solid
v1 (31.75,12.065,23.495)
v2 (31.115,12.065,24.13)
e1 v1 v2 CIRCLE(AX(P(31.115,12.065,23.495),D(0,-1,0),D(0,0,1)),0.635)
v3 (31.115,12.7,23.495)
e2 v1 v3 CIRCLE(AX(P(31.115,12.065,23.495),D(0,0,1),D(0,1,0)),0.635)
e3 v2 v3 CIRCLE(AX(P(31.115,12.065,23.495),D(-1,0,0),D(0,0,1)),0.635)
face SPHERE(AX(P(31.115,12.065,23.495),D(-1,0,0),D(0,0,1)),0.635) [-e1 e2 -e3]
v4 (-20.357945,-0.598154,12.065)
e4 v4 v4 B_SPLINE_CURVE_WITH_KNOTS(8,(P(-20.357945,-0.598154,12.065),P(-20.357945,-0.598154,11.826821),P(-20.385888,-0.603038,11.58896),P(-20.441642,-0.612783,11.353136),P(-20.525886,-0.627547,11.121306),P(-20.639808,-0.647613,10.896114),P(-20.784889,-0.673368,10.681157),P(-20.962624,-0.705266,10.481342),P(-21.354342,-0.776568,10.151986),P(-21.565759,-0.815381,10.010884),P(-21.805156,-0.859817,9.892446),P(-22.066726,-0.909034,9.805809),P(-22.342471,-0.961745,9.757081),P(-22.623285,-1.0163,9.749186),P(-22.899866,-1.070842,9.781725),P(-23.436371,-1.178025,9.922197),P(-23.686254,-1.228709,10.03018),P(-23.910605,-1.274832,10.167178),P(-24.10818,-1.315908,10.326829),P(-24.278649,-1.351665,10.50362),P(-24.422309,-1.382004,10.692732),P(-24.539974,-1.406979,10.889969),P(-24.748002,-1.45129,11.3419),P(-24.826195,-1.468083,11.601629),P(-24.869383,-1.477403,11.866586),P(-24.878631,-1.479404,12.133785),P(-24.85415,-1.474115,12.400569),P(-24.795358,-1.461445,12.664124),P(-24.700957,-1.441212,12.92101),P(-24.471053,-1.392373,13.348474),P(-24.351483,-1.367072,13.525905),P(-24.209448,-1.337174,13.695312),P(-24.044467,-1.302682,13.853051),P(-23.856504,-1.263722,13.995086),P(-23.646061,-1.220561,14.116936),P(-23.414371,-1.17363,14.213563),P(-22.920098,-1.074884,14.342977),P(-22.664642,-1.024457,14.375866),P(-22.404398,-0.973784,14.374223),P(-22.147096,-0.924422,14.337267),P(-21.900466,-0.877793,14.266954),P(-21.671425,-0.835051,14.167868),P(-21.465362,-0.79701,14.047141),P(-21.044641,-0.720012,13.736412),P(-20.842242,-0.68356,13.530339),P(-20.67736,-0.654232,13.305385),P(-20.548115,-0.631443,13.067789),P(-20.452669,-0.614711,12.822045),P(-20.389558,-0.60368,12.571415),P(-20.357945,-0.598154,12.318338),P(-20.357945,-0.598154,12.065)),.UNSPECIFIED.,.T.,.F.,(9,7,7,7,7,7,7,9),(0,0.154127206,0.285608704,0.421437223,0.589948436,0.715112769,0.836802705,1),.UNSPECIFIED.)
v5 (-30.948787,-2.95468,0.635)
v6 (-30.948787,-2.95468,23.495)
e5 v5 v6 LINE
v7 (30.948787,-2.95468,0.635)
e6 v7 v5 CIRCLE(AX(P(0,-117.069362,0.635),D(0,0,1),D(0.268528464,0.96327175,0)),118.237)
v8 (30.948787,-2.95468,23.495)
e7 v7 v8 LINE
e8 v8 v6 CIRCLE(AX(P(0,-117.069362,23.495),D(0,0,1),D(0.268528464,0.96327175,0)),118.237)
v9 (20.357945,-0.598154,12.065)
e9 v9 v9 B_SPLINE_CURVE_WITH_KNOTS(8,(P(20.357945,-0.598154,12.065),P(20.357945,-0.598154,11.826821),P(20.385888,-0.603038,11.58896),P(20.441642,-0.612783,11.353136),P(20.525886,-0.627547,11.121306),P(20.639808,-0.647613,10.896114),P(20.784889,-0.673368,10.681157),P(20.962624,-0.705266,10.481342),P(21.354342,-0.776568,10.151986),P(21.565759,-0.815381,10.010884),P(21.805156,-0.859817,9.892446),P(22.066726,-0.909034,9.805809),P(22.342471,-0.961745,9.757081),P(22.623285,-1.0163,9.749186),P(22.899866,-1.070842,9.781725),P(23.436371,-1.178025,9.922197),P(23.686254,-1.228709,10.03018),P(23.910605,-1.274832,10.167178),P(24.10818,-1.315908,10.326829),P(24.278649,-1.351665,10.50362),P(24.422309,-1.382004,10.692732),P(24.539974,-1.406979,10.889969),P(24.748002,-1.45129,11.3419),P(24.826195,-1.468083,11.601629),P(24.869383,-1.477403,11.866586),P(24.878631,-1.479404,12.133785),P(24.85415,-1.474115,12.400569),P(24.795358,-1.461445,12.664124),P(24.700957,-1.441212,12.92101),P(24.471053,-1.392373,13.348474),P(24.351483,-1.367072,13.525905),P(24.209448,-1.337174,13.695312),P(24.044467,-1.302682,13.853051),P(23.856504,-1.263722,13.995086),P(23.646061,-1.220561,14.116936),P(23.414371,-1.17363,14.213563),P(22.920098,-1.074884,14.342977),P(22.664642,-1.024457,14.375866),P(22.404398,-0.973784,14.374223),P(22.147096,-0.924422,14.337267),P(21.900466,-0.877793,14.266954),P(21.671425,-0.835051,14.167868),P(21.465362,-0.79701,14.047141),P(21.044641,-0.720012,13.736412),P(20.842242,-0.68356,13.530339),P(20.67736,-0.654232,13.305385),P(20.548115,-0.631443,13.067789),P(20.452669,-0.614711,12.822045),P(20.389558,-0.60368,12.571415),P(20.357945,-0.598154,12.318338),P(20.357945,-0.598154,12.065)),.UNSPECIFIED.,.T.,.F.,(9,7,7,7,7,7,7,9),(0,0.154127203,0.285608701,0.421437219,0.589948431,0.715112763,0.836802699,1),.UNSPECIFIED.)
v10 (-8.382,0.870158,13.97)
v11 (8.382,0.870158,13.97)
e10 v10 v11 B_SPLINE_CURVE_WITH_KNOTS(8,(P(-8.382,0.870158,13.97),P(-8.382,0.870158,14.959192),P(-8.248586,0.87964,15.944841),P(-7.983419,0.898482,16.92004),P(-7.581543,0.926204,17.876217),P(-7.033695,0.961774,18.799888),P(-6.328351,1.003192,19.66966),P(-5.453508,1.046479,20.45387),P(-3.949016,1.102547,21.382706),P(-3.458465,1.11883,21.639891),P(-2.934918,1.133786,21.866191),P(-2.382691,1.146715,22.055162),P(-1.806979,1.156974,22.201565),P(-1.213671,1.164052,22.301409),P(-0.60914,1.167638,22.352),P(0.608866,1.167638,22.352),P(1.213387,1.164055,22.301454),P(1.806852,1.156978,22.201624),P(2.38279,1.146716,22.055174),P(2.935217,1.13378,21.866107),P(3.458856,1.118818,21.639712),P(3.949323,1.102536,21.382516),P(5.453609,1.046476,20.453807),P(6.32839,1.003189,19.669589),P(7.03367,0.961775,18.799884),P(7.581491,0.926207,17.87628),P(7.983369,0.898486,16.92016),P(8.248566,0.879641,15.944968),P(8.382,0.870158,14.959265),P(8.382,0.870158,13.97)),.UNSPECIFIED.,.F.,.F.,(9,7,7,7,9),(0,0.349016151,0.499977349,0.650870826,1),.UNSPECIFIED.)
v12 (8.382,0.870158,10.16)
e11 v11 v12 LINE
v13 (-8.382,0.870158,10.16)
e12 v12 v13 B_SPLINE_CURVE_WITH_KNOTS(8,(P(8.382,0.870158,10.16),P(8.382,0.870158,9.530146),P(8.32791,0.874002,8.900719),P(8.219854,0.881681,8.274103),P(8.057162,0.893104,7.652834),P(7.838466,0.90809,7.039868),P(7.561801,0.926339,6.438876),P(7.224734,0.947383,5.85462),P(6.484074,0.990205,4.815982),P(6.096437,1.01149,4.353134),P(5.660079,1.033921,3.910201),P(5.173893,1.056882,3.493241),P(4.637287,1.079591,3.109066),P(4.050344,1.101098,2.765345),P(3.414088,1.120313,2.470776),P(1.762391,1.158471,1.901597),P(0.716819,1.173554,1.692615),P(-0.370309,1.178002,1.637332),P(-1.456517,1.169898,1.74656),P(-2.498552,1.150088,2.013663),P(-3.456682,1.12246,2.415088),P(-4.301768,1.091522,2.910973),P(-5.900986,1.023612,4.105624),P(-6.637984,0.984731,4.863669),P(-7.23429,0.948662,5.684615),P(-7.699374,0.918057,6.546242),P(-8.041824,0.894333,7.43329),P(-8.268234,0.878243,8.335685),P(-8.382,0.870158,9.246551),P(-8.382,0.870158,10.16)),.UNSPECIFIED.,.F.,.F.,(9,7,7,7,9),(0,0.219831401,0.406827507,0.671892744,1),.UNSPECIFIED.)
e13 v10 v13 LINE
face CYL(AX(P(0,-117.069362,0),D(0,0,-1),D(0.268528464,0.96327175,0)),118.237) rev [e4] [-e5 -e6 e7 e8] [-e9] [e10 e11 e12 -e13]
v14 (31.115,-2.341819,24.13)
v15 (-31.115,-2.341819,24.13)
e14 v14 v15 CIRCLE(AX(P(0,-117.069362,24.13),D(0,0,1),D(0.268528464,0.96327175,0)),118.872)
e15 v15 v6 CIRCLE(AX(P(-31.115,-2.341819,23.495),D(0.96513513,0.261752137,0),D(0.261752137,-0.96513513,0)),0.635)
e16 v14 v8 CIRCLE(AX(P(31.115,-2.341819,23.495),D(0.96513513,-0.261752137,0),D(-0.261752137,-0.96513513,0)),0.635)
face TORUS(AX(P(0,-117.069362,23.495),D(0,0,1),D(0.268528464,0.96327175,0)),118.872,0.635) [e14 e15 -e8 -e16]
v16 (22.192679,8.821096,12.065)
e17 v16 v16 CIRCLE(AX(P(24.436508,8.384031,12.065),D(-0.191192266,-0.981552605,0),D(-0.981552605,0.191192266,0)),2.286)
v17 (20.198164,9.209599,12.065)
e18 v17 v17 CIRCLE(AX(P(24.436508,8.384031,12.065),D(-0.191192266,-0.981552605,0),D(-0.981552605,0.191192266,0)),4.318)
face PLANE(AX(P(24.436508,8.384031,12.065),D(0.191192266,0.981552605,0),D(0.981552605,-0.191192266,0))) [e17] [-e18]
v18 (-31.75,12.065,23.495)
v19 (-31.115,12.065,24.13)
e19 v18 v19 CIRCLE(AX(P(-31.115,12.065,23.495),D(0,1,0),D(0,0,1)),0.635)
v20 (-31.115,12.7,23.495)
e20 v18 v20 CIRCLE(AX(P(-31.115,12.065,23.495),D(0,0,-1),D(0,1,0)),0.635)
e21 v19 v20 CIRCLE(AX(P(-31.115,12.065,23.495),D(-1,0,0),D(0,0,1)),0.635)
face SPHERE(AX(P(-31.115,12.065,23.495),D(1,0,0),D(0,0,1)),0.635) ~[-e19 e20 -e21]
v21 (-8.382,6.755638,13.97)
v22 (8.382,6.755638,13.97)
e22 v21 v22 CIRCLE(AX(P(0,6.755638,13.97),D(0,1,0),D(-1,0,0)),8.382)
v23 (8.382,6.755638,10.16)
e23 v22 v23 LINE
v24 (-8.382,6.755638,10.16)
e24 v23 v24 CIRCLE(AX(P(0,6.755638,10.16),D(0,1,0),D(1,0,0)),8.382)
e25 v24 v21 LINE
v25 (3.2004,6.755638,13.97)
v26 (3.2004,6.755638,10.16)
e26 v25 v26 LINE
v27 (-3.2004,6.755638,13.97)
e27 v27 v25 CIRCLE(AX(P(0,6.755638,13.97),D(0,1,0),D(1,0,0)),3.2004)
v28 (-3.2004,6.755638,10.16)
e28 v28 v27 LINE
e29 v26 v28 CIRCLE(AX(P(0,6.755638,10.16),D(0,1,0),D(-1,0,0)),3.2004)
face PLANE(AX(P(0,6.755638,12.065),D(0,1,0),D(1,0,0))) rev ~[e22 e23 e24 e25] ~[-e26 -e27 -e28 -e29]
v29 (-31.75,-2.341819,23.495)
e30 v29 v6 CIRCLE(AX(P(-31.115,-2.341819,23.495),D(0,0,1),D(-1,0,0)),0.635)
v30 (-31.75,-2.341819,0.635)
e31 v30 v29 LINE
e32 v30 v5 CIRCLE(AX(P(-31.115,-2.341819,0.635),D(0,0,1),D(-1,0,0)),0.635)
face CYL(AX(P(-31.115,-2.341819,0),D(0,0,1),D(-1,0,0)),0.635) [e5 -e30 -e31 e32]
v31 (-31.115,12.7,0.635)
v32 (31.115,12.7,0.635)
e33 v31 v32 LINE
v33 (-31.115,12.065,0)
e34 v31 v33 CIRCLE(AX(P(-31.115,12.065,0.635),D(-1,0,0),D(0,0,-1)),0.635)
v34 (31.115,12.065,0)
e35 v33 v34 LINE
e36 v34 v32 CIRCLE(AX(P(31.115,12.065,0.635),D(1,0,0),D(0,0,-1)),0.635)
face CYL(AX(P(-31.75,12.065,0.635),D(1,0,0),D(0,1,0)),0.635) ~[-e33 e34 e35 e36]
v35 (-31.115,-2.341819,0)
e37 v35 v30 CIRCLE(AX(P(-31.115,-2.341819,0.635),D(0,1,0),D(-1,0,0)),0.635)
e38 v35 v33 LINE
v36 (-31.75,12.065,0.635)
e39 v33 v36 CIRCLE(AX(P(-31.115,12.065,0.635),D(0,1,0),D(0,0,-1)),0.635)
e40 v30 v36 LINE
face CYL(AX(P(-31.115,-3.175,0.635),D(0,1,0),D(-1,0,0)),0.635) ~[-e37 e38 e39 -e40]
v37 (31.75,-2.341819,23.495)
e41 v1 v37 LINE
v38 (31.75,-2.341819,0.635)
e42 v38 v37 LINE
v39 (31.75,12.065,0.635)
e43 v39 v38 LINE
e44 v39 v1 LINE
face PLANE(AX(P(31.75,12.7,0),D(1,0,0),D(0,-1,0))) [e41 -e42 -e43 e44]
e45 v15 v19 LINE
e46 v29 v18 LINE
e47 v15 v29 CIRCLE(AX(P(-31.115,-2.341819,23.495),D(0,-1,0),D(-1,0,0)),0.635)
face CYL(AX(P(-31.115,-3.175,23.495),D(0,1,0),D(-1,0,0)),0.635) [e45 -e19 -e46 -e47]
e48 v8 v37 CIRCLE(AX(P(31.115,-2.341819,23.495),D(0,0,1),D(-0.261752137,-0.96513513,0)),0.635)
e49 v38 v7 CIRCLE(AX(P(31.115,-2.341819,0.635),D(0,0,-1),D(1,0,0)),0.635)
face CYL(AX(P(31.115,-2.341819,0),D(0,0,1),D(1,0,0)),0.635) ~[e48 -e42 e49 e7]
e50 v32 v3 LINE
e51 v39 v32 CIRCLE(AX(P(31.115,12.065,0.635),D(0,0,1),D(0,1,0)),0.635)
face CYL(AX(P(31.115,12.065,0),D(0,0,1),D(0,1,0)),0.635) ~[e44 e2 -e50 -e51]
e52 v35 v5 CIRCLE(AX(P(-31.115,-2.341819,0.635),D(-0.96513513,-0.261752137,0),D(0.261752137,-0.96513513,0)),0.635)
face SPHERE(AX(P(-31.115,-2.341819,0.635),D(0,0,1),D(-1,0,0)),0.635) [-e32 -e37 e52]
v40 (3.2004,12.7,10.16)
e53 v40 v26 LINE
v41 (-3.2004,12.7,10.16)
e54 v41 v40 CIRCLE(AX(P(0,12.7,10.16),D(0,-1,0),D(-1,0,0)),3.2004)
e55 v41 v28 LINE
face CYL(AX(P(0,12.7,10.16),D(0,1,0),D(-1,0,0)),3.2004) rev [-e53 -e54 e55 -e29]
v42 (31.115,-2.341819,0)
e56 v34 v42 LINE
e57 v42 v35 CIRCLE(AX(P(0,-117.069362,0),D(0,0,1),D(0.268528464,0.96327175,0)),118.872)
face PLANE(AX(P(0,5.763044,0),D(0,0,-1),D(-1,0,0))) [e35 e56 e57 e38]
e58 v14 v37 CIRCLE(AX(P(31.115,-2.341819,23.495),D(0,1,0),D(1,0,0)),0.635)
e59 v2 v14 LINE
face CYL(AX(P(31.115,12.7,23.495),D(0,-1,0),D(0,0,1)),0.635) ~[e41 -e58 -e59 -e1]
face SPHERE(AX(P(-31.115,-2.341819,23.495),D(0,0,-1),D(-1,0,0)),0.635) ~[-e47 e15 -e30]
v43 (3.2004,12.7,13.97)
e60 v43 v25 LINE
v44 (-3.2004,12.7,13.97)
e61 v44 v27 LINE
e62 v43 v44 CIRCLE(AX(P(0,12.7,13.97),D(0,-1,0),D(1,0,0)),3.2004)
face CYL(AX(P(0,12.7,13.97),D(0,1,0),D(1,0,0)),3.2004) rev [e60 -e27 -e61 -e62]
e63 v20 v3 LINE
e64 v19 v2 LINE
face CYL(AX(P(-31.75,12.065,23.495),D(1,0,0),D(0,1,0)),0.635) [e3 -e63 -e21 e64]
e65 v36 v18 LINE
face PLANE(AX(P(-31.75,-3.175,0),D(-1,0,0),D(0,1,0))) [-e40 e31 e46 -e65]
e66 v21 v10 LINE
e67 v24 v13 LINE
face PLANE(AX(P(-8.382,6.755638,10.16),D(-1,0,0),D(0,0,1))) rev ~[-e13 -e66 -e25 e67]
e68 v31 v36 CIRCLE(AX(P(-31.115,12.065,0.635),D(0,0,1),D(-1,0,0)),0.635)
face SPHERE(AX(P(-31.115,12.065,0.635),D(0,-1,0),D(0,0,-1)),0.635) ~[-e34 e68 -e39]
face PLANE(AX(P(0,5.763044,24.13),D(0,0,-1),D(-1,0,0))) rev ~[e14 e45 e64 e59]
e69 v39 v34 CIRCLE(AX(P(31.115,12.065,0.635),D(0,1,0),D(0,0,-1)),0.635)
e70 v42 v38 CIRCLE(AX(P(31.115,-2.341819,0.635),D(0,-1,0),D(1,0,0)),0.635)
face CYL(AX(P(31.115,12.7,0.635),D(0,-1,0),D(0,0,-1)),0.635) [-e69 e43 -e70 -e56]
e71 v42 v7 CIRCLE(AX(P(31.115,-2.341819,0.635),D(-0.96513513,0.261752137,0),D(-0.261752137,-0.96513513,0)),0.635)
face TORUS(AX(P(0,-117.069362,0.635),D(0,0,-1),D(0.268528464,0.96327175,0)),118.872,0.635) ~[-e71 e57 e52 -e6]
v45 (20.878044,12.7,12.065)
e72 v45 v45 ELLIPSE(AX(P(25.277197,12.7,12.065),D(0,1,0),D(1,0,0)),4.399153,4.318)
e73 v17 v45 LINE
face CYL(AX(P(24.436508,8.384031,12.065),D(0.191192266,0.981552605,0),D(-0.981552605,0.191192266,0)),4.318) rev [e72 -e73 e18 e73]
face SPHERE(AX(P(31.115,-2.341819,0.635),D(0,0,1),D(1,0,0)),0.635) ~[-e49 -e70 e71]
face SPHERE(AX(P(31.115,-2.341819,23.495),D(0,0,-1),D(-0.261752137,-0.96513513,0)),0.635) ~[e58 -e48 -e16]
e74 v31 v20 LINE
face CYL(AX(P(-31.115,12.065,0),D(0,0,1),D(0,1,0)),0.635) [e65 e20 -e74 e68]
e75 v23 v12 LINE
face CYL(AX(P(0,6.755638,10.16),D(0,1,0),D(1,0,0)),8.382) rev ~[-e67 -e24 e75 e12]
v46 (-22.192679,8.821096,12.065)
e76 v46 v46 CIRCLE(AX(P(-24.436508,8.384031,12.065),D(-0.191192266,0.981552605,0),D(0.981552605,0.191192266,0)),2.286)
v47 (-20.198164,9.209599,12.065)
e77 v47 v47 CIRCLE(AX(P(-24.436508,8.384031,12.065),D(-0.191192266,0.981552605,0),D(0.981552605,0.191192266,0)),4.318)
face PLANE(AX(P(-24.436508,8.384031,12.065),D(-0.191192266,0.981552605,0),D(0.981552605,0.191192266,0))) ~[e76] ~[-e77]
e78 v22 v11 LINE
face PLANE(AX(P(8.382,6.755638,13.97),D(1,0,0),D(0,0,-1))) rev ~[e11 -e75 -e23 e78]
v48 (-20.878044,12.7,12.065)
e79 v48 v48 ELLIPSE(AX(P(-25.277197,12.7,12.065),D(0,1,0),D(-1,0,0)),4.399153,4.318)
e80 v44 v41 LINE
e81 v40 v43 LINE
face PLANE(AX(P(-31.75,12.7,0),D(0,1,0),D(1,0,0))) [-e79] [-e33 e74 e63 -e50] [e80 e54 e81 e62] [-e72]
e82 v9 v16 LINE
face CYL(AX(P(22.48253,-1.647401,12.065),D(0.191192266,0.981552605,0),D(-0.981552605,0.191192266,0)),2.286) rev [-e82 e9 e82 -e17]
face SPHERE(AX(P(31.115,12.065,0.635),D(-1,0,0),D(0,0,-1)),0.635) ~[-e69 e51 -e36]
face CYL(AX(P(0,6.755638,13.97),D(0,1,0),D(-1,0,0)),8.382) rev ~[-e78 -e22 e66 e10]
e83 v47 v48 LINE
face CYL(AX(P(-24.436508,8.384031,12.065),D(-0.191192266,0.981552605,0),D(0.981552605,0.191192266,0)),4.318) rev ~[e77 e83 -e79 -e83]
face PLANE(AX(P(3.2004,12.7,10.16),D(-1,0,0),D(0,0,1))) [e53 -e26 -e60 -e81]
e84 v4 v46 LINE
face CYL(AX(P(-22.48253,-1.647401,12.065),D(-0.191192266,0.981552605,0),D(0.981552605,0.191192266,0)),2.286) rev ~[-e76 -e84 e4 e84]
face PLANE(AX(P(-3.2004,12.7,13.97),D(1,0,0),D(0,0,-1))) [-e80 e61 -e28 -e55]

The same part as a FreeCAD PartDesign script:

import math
import FreeCAD as App
import Part
import Sketcher
Q = App.Units.Quantity


def edges_at(feature, points):
    """Names of the edges that pass closest to the given points."""
    edges = feature.Shape.Edges
    near = lambda p: min(range(len(edges)), key=lambda i: edges[i].distToShape(Part.Vertex(*p))[0])
    return sorted({f"Edge{near(p) + 1}" for p in points})


def add_polygon(sketch, points):
    """Adds a closed chain of lines whose ends are joined by coincident constraints."""
    first, n = sketch.GeometryCount, len(points)
    for a, b in zip(points, points[1:] + points[:1]):
        sketch.addGeometry(Part.LineSegment(App.Vector(*a, 0), App.Vector(*b, 0)), False)
    for i in range(n):
        sketch.addConstraint(Sketcher.Constraint("Coincident", first + i, 2, first + (i + 1) % n, 1))

doc = App.newDocument("Part")
body = doc.addObject("PartDesign::Body", "Body")

sketch1 = body.newObject("Sketcher::SketchObject", "Sketch")
sketch1.AttachmentSupport = (doc.getObject("XY_Plane"), [""])
sketch1.MapMode = "FlatFace"
sketch1.addGeometry([
    Part.LineSegment(App.Vector(32, 13, 0), App.Vector(-32, 13, 0)),
    Part.LineSegment(App.Vector(-32, 13, 0), App.Vector(-32, -3, 0)),
    Part.ArcOfCircle(Part.Circle(App.Vector(0, -117, 0), App.Vector(0, 0, 1), 118), math.radians(74), math.radians(106)),
    Part.LineSegment(App.Vector(32, -3, 0), App.Vector(32, 13, 0)),
], False)
sketch1.addConstraint([
    Sketcher.Constraint("Coincident", 0, 2, 1, 1),
    Sketcher.Constraint("Coincident", 1, 2, 2, 2),
    Sketcher.Constraint("Coincident", 2, 1, 3, 1),
    Sketcher.Constraint("Coincident", 3, 2, 0, 1),
    Sketcher.Constraint("Horizontal", 0),
    Sketcher.Constraint("Vertical", 1),
    Sketcher.Constraint("Vertical", 3),
    Sketcher.Constraint("Symmetric", 1, 2, 2, 1, -2),
    Sketcher.Constraint("DistanceX", 0, 2, 0, 1, Q("2.5 in")),
    Sketcher.Constraint("Radius", 2, Q("4.655 in")),
    Sketcher.Constraint("DistanceY", -1, 1, 0, 2, Q("0.5 in")),
    Sketcher.Constraint("DistanceY", 1, 2, 1, 1, Q("0.625 in")),
])
pad1 = body.newObject("PartDesign::Pad", "Pad")
pad1.Profile = sketch1
pad1.Length = Q("0.95 in")

sketch2 = body.newObject("Sketcher::SketchObject", "Sketch001")
sketch2.AttachmentSupport = (doc.getObject("XY_Plane"), [""])
sketch2.MapMode = "FlatFace"
sketch2.AttachmentOffset = App.Placement(App.Vector(0, 0, 0.475 * 25.4), App.Rotation())
add_polygon(sketch2, [(24.7, -2.1), (22.5, -1.6), (26.1, 17), (30.4, 16.2), (28.7, 7.6), (26.7, 7.9)])
sketch2.addGeometry(Part.LineSegment(App.Vector(26.1, 17, 0), App.Vector(22.5, -1.6, 0)), True)
sketch2.addConstraint([
    Sketcher.Constraint("Coincident", 6, 1, 1, 2),
    Sketcher.Constraint("Coincident", 6, 2, 0, 2),
    Sketcher.Constraint("Perpendicular", 0, 1),
    Sketcher.Constraint("Perpendicular", 1, 2),
    Sketcher.Constraint("Perpendicular", 2, 3),
    Sketcher.Constraint("Perpendicular", 3, 4),
    Sketcher.Constraint("Perpendicular", 4, 5),
    Sketcher.Constraint("Distance", 0, Q("0.09 in")),
    Sketcher.Constraint("Distance", 2, Q("0.17 in")),
    Sketcher.Constraint("Distance", 1, Q("19.040801 mm")),
    Sketcher.Constraint("DistanceY", 0, 2, -1, 1, Q("1.647401 mm")),
    Sketcher.Constraint("DistanceX", 0, 2, 2, 2, Q("7.878798 mm")),
    Sketcher.Constraint("DistanceX", -1, 1, 0, 2, Q("22.48253 mm")),
    Sketcher.Constraint("DistanceX", 1, 2, 3, 2, Q("2.551868 mm")),
])
groove = body.newObject("PartDesign::Groove", "Groove")
groove.Profile = sketch2
groove.ReferenceAxis = (sketch2, ["Axis0"])
groove.Angle = 360
doc.recompute()

mirrored = body.newObject("PartDesign::Mirrored", "Mirrored")
mirrored.Originals = [groove]
mirrored.MirrorPlane = (doc.getObject("YZ_Plane"), [""])
body.Tip = mirrored
doc.recompute()

fillet = body.newObject("PartDesign::Fillet", "Fillet")
fillet.Base = (mirrored, edges_at(mirrored, [
    (0, 12.7, 24.13),
    (-31.75, 4.763, 24.13),
    (0, 1.168, 24.13),
    (-31.75, 4.763, 0),
    (0, 12.7, 0),
    (31.75, 4.763, 0),
    (0, 1.168, 0),
    (31.75, 4.763, 24.13),
    (-31.75, -3.175, 12.065),
    (-31.75, 12.7, 12.065),
    (31.75, 12.7, 12.065),
    (31.75, -3.175, 12.065),
]))
fillet.Radius = Q("0.025 in")

sketch3 = body.newObject("Sketcher::SketchObject", "Sketch002")
sketch3.AttachmentSupport = (doc.getObject("XZ_Plane"), [""])
sketch3.MapMode = "FlatFace"
sketch3.AttachmentOffset = App.Placement(App.Vector(0, 0, -0.5 * 25.4), App.Rotation())
sketch3.addGeometry([
    Part.LineSegment(App.Vector(-3.2, 10.2, 0), App.Vector(-3.2, 14, 0)),
    Part.ArcOfCircle(Part.Circle(App.Vector(0, 14, 0), App.Vector(0, 0, 1), 3.2), math.radians(0), math.radians(180)),
    Part.LineSegment(App.Vector(3.2, 14, 0), App.Vector(3.2, 10.2, 0)),
    Part.ArcOfCircle(Part.Circle(App.Vector(0, 10.2, 0), App.Vector(0, 0, 1), 3.2), math.radians(180), math.radians(360)),
], False)
sketch3.addConstraint([
    Sketcher.Constraint("Tangent", 0, 2, 1, 2),
    Sketcher.Constraint("Tangent", 1, 1, 2, 1),
    Sketcher.Constraint("Tangent", 2, 2, 3, 2),
    Sketcher.Constraint("Tangent", 3, 1, 0, 1),
    Sketcher.Constraint("Vertical", 0),
    Sketcher.Constraint("Vertical", 2),
    Sketcher.Constraint("PointOnObject", 1, 3, -2),
    Sketcher.Constraint("Radius", 1, Q("0.126 in")),
    Sketcher.Constraint("DistanceY", 0, 1, 0, 2, Q("0.15 in")),
    Sketcher.Constraint("DistanceY", -1, 1, 3, 3, Q("0.4 in")),
])
pocket1 = body.newObject("PartDesign::Pocket", "Pocket")
pocket1.Profile = sketch3
pocket1.Type = "ThroughAll"
pocket1.Reversed = True

sketch4 = body.newObject("Sketcher::SketchObject", "Sketch003")
sketch4.AttachmentSupport = (doc.getObject("XZ_Plane"), [""])
sketch4.MapMode = "FlatFace"
sketch4.AttachmentOffset = App.Placement(App.Vector(0, 0, -1.167638), App.Rotation())
sketch4.addGeometry([
    Part.LineSegment(App.Vector(-8.4, 14, 0), App.Vector(-8.4, 10.2, 0)),
    Part.ArcOfCircle(Part.Circle(App.Vector(0, 10.2, 0), App.Vector(0, 0, 1), 8.4), math.radians(180), math.radians(360)),
    Part.LineSegment(App.Vector(8.4, 10.2, 0), App.Vector(8.4, 14, 0)),
    Part.ArcOfCircle(Part.Circle(App.Vector(0, 14, 0), App.Vector(0, 0, 1), 8.4), math.radians(0), math.radians(180)),
], False)
sketch4.addConstraint([
    Sketcher.Constraint("Tangent", 0, 2, 1, 1),
    Sketcher.Constraint("Tangent", 1, 2, 2, 1),
    Sketcher.Constraint("Tangent", 2, 2, 3, 1),
    Sketcher.Constraint("Tangent", 3, 2, 0, 1),
    Sketcher.Constraint("Vertical", 0),
    Sketcher.Constraint("Vertical", 2),
    Sketcher.Constraint("PointOnObject", 1, 3, -2),
    Sketcher.Constraint("Radius", 1, Q("0.33 in")),
    Sketcher.Constraint("DistanceY", 0, 2, 0, 1, Q("0.15 in")),
    Sketcher.Constraint("DistanceY", -1, 1, 1, 3, Q("0.4 in")),
])
pocket2 = body.newObject("PartDesign::Pocket", "Pocket001")
pocket2.Profile = sketch4
pocket2.Type = "TwoLengths"
pocket2.Length = 42.512827
pocket2.Length2 = Q("0.22 in")
pocket2.Reversed = True

doc.recompute()
